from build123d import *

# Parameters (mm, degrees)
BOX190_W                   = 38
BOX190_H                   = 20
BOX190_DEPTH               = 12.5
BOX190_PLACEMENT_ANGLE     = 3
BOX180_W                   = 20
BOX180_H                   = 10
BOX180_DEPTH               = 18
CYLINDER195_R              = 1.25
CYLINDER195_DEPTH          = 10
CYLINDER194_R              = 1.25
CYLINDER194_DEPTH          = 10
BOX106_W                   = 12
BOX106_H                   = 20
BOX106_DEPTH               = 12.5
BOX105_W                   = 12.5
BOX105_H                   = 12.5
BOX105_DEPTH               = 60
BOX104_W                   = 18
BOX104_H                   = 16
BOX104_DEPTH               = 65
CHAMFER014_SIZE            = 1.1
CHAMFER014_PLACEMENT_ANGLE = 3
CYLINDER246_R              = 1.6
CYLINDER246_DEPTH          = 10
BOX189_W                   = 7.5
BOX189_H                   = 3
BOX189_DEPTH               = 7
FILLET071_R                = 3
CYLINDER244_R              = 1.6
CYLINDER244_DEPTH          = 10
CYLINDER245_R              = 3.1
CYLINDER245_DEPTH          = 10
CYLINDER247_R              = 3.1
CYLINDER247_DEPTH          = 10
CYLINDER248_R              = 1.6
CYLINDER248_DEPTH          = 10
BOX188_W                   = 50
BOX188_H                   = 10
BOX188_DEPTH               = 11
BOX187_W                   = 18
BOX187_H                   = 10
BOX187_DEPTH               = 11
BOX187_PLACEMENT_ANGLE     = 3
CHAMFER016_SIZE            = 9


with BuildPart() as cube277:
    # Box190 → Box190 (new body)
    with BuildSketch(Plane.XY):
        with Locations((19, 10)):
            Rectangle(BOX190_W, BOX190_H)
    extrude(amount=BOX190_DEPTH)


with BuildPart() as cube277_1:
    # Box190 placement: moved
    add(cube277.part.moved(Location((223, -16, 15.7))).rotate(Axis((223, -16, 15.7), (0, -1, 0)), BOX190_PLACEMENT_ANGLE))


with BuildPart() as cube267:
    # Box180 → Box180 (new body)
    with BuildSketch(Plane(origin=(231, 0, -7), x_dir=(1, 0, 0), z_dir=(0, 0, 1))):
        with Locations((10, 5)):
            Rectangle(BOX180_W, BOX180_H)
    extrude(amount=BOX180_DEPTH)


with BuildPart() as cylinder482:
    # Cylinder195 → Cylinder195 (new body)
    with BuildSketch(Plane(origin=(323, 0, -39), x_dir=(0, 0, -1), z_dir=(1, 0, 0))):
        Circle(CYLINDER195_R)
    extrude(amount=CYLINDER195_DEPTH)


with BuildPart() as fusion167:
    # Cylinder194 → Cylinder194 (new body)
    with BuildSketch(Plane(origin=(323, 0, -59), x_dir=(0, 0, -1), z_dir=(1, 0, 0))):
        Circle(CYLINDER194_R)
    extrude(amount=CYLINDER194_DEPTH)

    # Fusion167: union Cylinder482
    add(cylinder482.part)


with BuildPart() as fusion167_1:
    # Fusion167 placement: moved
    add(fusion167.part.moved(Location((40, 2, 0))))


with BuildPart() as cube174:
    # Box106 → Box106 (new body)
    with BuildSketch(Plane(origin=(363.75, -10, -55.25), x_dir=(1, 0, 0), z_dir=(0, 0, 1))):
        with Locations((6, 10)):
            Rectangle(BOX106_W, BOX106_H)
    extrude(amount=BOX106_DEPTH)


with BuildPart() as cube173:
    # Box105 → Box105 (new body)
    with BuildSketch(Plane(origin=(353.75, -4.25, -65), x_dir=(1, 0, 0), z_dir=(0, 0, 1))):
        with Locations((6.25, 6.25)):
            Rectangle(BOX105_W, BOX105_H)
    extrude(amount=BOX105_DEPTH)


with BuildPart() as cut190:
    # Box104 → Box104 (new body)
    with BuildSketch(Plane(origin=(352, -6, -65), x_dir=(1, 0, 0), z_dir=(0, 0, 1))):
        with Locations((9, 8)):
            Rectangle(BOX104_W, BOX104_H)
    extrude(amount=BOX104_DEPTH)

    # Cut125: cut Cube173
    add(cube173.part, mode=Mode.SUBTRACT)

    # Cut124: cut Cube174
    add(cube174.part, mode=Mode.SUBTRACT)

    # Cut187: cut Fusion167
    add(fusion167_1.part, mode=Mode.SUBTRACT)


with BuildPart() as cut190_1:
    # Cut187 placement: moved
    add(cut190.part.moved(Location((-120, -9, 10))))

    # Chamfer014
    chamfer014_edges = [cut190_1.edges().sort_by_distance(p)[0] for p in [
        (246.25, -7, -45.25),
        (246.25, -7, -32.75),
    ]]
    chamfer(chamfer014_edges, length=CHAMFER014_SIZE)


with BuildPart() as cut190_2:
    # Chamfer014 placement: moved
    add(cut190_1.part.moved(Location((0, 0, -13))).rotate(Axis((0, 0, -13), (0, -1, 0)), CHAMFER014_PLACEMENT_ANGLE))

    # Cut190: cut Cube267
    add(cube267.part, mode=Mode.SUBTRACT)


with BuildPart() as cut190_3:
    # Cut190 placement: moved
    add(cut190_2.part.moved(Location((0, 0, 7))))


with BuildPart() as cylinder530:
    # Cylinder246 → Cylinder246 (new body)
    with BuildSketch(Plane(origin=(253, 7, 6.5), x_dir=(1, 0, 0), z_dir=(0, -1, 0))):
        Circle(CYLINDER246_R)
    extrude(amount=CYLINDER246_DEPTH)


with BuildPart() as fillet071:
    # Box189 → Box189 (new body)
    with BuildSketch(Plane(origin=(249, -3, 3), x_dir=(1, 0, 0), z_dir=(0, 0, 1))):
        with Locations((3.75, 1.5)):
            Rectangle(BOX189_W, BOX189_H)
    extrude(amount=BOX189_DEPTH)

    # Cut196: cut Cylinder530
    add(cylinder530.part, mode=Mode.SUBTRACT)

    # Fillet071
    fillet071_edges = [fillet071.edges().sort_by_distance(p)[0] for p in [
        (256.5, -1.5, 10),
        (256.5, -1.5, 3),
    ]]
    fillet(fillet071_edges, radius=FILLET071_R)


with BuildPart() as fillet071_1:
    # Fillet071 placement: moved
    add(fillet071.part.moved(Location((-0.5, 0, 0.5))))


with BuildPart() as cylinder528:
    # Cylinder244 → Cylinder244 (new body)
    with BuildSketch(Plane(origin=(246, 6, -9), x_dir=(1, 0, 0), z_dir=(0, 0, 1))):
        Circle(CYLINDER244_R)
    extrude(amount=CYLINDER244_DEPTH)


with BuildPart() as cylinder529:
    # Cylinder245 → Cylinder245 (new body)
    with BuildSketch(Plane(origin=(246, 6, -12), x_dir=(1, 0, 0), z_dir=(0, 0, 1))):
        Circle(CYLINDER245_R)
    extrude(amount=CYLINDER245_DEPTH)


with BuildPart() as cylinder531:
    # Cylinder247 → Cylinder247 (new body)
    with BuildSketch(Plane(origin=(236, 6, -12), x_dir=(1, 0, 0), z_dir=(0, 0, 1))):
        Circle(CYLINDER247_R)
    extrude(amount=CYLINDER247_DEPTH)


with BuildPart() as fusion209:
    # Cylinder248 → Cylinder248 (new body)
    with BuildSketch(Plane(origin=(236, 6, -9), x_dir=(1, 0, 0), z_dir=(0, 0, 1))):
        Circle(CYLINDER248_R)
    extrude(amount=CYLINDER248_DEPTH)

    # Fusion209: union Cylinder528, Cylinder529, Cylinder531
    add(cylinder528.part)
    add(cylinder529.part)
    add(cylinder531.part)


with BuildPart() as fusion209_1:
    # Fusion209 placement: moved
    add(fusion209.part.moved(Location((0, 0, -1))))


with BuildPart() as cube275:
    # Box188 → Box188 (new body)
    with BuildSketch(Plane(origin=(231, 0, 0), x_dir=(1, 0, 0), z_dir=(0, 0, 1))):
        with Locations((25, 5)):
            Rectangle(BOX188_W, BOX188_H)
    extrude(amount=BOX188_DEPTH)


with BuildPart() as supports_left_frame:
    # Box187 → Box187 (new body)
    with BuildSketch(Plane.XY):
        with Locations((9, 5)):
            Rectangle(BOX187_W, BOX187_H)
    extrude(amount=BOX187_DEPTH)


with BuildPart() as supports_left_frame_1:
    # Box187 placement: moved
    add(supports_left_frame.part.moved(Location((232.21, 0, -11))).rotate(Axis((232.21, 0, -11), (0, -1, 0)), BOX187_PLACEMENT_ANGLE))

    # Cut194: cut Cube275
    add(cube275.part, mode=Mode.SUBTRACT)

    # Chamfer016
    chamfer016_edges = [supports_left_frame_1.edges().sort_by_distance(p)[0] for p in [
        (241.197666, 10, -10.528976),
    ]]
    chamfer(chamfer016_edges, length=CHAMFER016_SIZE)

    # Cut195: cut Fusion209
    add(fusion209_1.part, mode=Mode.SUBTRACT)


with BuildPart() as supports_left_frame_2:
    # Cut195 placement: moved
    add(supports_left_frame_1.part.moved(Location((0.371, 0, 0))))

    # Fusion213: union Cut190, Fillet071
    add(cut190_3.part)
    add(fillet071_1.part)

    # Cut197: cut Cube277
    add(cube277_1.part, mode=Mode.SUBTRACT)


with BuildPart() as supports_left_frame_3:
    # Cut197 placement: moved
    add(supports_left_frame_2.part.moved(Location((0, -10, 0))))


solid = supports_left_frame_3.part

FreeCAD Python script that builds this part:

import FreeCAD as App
import Part
import Sketcher
from FreeCAD import Vector
Q = App.Units.Quantity


def edges_at(feature, points):
    """Names of the edges that pass closest to the given points."""
    edges = feature.Shape.Edges
    near = lambda p: min(range(len(edges)), key=lambda i: edges[i].distToShape(Part.Vertex(*p))[0])
    return sorted({f"Edge{near(p) + 1}" for p in points})


def add_polygon(sketch, points):
    """Adds a closed chain of lines whose ends are joined by coincident constraints."""
    first, n = sketch.GeometryCount, len(points)
    for a, b in zip(points, points[1:] + points[:1]):
        sketch.addGeometry(Part.LineSegment(App.Vector(*a, 0), App.Vector(*b, 0)), False)
    for i in range(n):
        sketch.addConstraint(Sketcher.Constraint("Coincident", first + i, 2, first + (i + 1) % n, 1))

doc = App.newDocument("Part")
body = doc.addObject("PartDesign::Body", "Body")

# Sketch on XY plane
sketch1 = body.newObject("Sketcher::SketchObject", "Sketch")
sketch1.AttachmentSupport = (doc.getObject("XY_Plane"), [""])
sketch1.MapMode = "FlatFace"
add_polygon(sketch1, [(0, 20), (0, 0), (38, 0), (38, 20)])  # lines 0-3
sketch1.addConstraint([
    Sketcher.Constraint("Vertical", 0),
    Sketcher.Constraint("Horizontal", 1),
    Sketcher.Constraint("Vertical", 2),
    Sketcher.Constraint("Horizontal", 3),
    Sketcher.Constraint("Coincident", 0, 2, -1, 1),
    Sketcher.Constraint("DistanceX", 1, 1, 1, 2, Q("38 mm")),
    Sketcher.Constraint("DistanceY", 0, 2, 0, 1, Q("20 mm")),
])
pad1 = body.newObject("PartDesign::Pad", "Pad")
pad1.Profile = sketch1
pad1.Length = 12.5
body2 = doc.addObject("PartDesign::Body", "Body001")
doc.recompute()

body.Placement = App.Placement(Vector(223, -16, 15.7), App.Rotation(Vector(0, -1, 0), 3))
boolean = body2.newObject("PartDesign::Boolean", "Boolean")
boolean.Type = "Fuse"
boolean.addObjects([body])
body3 = doc.addObject("PartDesign::Body", "Body002")

# Sketch on XY plane
sketch2 = body3.newObject("Sketcher::SketchObject", "Sketch001")
sketch2.AttachmentSupport = (doc.getObject("XY_Plane002"), [""])
sketch2.MapMode = "FlatFace"
sketch2.AttachmentOffset = App.Placement(Vector(0, 0, -7), App.Rotation())
add_polygon(sketch2, [(231, 10), (231, 0), (251, 0), (251, 10)])  # lines 0-3
sketch2.addConstraint([
    Sketcher.Constraint("Vertical", 0),
    Sketcher.Constraint("Horizontal", 1),
    Sketcher.Constraint("Vertical", 2),
    Sketcher.Constraint("Horizontal", 3),
    Sketcher.Constraint("PointOnObject", 0, 2, -1),
    Sketcher.Constraint("DistanceX", 1, 1, 1, 2, Q("20 mm")),
    Sketcher.Constraint("DistanceY", 0, 2, 0, 1, Q("10 mm")),
    Sketcher.Constraint("DistanceX", -1, 1, 0, 2, Q("231 mm")),
])
pad2 = body3.newObject("PartDesign::Pad", "Pad001")
pad2.Profile = sketch2
pad2.Length = 18
body4 = doc.addObject("PartDesign::Body", "Body003")

# Sketch on YZ plane
sketch3 = body4.newObject("Sketcher::SketchObject", "Sketch002")
sketch3.AttachmentSupport = (doc.getObject("YZ_Plane003"), [""])
sketch3.MapMode = "FlatFace"
sketch3.AttachmentOffset = App.Placement(Vector(0, 0, 323), App.Rotation())
sketch3.addGeometry(Part.Circle(Vector(0, -39, 0), Vector(0, 0, 1), 1.25), False)
sketch3.addConstraint([
    Sketcher.Constraint("PointOnObject", 0, 3, -2),
    Sketcher.Constraint("Diameter", 0, Q("2.5 mm")),
    Sketcher.Constraint("DistanceY", 0, 3, -1, 1, Q("39 mm")),
])
pad3 = body4.newObject("PartDesign::Pad", "Pad002")
pad3.Profile = sketch3
pad3.Length = 10
body5 = doc.addObject("PartDesign::Body", "Body004")
body5.AllowCompound = True

# Sketch on YZ plane
sketch4 = body5.newObject("Sketcher::SketchObject", "Sketch003")
sketch4.AttachmentSupport = (doc.getObject("YZ_Plane004"), [""])
sketch4.MapMode = "FlatFace"
sketch4.AttachmentOffset = App.Placement(Vector(0, 0, 323), App.Rotation())
sketch4.addGeometry(Part.Circle(Vector(0, -59, 0), Vector(0, 0, 1), 1.25), False)
sketch4.addConstraint([
    Sketcher.Constraint("PointOnObject", 0, 3, -2),
    Sketcher.Constraint("Diameter", 0, Q("2.5 mm")),
    Sketcher.Constraint("DistanceY", 0, 3, -1, 1, Q("59 mm")),
])
pad4 = body5.newObject("PartDesign::Pad", "Pad003")
pad4.Profile = sketch4
pad4.Length = 10
doc.recompute()

boolean2 = body5.newObject("PartDesign::Boolean", "Boolean001")
boolean2.Type = "Fuse"
boolean2.addObjects([body4])
body6 = doc.addObject("PartDesign::Body", "Body005")
body6.AllowCompound = True
doc.recompute()

body5.Placement = App.Placement(Vector(40, 2, 0), App.Rotation(Vector(0, 0, 1), 0))
boolean3 = body6.newObject("PartDesign::Boolean", "Boolean002")
boolean3.Type = "Fuse"
boolean3.addObjects([body5])
body7 = doc.addObject("PartDesign::Body", "Body006")

# Sketch on XY plane
sketch5 = body7.newObject("Sketcher::SketchObject", "Sketch004")
sketch5.AttachmentSupport = (doc.getObject("XY_Plane006"), [""])
sketch5.MapMode = "FlatFace"
sketch5.AttachmentOffset = App.Placement(Vector(0, 0, -55.25), App.Rotation())
add_polygon(sketch5, [(363.75, 10), (363.75, -10), (375.75, -10), (375.75, 10)])  # lines 0-3
sketch5.addConstraint([
    Sketcher.Constraint("Vertical", 0),
    Sketcher.Constraint("Horizontal", 1),
    Sketcher.Constraint("Vertical", 2),
    Sketcher.Constraint("Horizontal", 3),
    Sketcher.Constraint("DistanceX", 1, 1, 1, 2, Q("12 mm")),
    Sketcher.Constraint("DistanceY", 0, 2, 0, 1, Q("20 mm")),
    Sketcher.Constraint("DistanceY", 0, 2, -1, 1, Q("10 mm")),
    Sketcher.Constraint("DistanceX", -1, 1, 0, 2, Q("363.75 mm")),
])
pad5 = body7.newObject("PartDesign::Pad", "Pad004")
pad5.Profile = sketch5
pad5.Length = 12.5
body8 = doc.addObject("PartDesign::Body", "Body007")

# Sketch on XY plane
sketch6 = body8.newObject("Sketcher::SketchObject", "Sketch005")
sketch6.AttachmentSupport = (doc.getObject("XY_Plane007"), [""])
sketch6.MapMode = "FlatFace"
sketch6.AttachmentOffset = App.Placement(Vector(0, 0, -65), App.Rotation())
add_polygon(sketch6, [(353.75, 8.25), (353.75, -4.25), (366.25, -4.25), (366.25, 8.25)])  # lines 0-3
sketch6.addConstraint([
    Sketcher.Constraint("Vertical", 0),
    Sketcher.Constraint("Horizontal", 1),
    Sketcher.Constraint("Vertical", 2),
    Sketcher.Constraint("Horizontal", 3),
    Sketcher.Constraint("Equal", 3, 0),
    Sketcher.Constraint("DistanceX", 1, 1, 1, 2, Q("12.5 mm")),
    Sketcher.Constraint("DistanceX", -1, 1, 0, 2, Q("353.75 mm")),
    Sketcher.Constraint("DistanceY", 0, 2, -1, 1, Q("4.25 mm")),
])
pad6 = body8.newObject("PartDesign::Pad", "Pad005")
pad6.Profile = sketch6
pad6.Length = 60
body9 = doc.addObject("PartDesign::Body", "Body008")

# Sketch on XY plane
sketch7 = body9.newObject("Sketcher::SketchObject", "Sketch006")
sketch7.AttachmentSupport = (doc.getObject("XY_Plane008"), [""])
sketch7.MapMode = "FlatFace"
sketch7.AttachmentOffset = App.Placement(Vector(0, 0, -65), App.Rotation())
add_polygon(sketch7, [(352, 10), (352, -6), (370, -6), (370, 10)])  # lines 0-3
sketch7.addConstraint([
    Sketcher.Constraint("Vertical", 0),
    Sketcher.Constraint("Horizontal", 1),
    Sketcher.Constraint("Vertical", 2),
    Sketcher.Constraint("Horizontal", 3),
    Sketcher.Constraint("DistanceX", 1, 1, 1, 2, Q("18 mm")),
    Sketcher.Constraint("DistanceY", 0, 2, 0, 1, Q("16 mm")),
    Sketcher.Constraint("DistanceX", -1, 1, 0, 2, Q("352 mm")),
    Sketcher.Constraint("DistanceY", 0, 2, -1, 1, Q("6 mm")),
])
pad7 = body9.newObject("PartDesign::Pad", "Pad006")
pad7.Profile = sketch7
pad7.Length = 65
doc.recompute()

boolean4 = body9.newObject("PartDesign::Boolean", "Boolean003")
boolean4.Type = "Cut"
boolean4.addObjects([body8])
doc.recompute()

boolean5 = body9.newObject("PartDesign::Boolean", "Boolean004")
boolean5.Type = "Cut"
boolean5.addObjects([body7])
doc.recompute()

boolean6 = body9.newObject("PartDesign::Boolean", "Boolean005")
boolean6.Type = "Cut"
boolean6.addObjects([body6])
body10 = doc.addObject("PartDesign::Body", "Body009")
doc.recompute()

body9.Placement = App.Placement(Vector(-120, -9, 10), App.Rotation(Vector(0, 0, 1), 0))
boolean7 = body10.newObject("PartDesign::Boolean", "Boolean006")
boolean7.Type = "Fuse"
boolean7.addObjects([body9])
doc.recompute()

chamfer = body10.newObject("PartDesign::Chamfer", "Chamfer")
chamfer.Base = (boolean7, edges_at(boolean7, [(246.25, -7, -45.25), (246.25, -7, -32.75)]))
chamfer.Size = 1.1
body11 = doc.addObject("PartDesign::Body", "Body010")
doc.recompute()

body10.Placement = App.Placement(Vector(0, 0, -13), App.Rotation(Vector(0, -1, 0), 3))
boolean8 = body11.newObject("PartDesign::Boolean", "Boolean007")
boolean8.Type = "Fuse"
boolean8.addObjects([body10])
doc.recompute()

boolean9 = body11.newObject("PartDesign::Boolean", "Boolean008")
boolean9.Type = "Cut"
boolean9.addObjects([body3])
body12 = doc.addObject("PartDesign::Body", "Body011")
doc.recompute()

body11.Placement = App.Placement(Vector(0, 0, 7), App.Rotation(Vector(0, 0, 1), 0))
boolean10 = body12.newObject("PartDesign::Boolean", "Boolean009")
boolean10.Type = "Fuse"
boolean10.addObjects([body11])
body13 = doc.addObject("PartDesign::Body", "Body012")

# Sketch on XZ plane
sketch8 = body13.newObject("Sketcher::SketchObject", "Sketch007")
sketch8.AttachmentSupport = (doc.getObject("XZ_Plane012"), [""])
sketch8.MapMode = "FlatFace"
sketch8.AttachmentOffset = App.Placement(Vector(0, 0, -7), App.Rotation())
sketch8.addGeometry(Part.Circle(Vector(253, 6.5, 0), Vector(0, 0, 1), 1.6), False)
sketch8.addConstraint([
    Sketcher.Constraint("Diameter", 0, Q("3.2 mm")),
    Sketcher.Constraint("DistanceX", -1, 1, 0, 3, Q("253 mm")),
    Sketcher.Constraint("DistanceY", -1, 1, 0, 3, Q("6.5 mm")),
])
pad8 = body13.newObject("PartDesign::Pad", "Pad007")
pad8.Profile = sketch8
pad8.Length = 10
body14 = doc.addObject("PartDesign::Body", "Body013")

# Sketch on XY plane
sketch9 = body14.newObject("Sketcher::SketchObject", "Sketch008")
sketch9.AttachmentSupport = (doc.getObject("XY_Plane013"), [""])
sketch9.MapMode = "FlatFace"
sketch9.AttachmentOffset = App.Placement(Vector(0, 0, 3), App.Rotation())
add_polygon(sketch9, [(249, 0), (249, -3), (256.5, -3), (256.5, 0)])  # lines 0-3
sketch9.addConstraint([
    Sketcher.Constraint("Vertical", 0),
    Sketcher.Constraint("Horizontal", 1),
    Sketcher.Constraint("Vertical", 2),
    Sketcher.Constraint("Horizontal", 3),
    Sketcher.Constraint("PointOnObject", 2, 2, -1),
    Sketcher.Constraint("DistanceY", 0, 2, 0, 1, Q("3 mm")),
    Sketcher.Constraint("DistanceX", 1, 1, 1, 2, Q("7.5 mm")),
    Sketcher.Constraint("DistanceX", -1, 1, 0, 2, Q("249 mm")),
])
pad9 = body14.newObject("PartDesign::Pad", "Pad008")
pad9.Profile = sketch9
pad9.Length = 7
doc.recompute()

boolean11 = body14.newObject("PartDesign::Boolean", "Boolean010")
boolean11.Type = "Cut"
boolean11.addObjects([body13])
doc.recompute()

fillet = body14.newObject("PartDesign::Fillet", "Fillet")
fillet.Base = (boolean11, edges_at(boolean11, [(256.5, -1.5, 10), (256.5, -1.5, 3)]))
fillet.Radius = 3
body15 = doc.addObject("PartDesign::Body", "Body014")
doc.recompute()

body14.Placement = App.Placement(Vector(-0.5, 0, 0.5), App.Rotation(Vector(0, 0, 1), 0))
boolean12 = body15.newObject("PartDesign::Boolean", "Boolean011")
boolean12.Type = "Fuse"
boolean12.addObjects([body14])
body16 = doc.addObject("PartDesign::Body", "Body015")

# Sketch on XY plane
sketch10 = body16.newObject("Sketcher::SketchObject", "Sketch009")
sketch10.AttachmentSupport = (doc.getObject("XY_Plane015"), [""])
sketch10.MapMode = "FlatFace"
sketch10.AttachmentOffset = App.Placement(Vector(0, 0, -9), App.Rotation())
sketch10.addGeometry(Part.Circle(Vector(246, 6, 0), Vector(0, 0, 1), 1.6), False)
sketch10.addConstraint([
    Sketcher.Constraint("Diameter", 0, Q("3.2 mm")),
    Sketcher.Constraint("DistanceX", -1, 1, 0, 3, Q("246 mm")),
    Sketcher.Constraint("DistanceY", -1, 1, 0, 3, Q("6 mm")),
])
pad10 = body16.newObject("PartDesign::Pad", "Pad009")
pad10.Profile = sketch10
pad10.Length = 10
body17 = doc.addObject("PartDesign::Body", "Body016")

# Sketch on XY plane
sketch11 = body17.newObject("Sketcher::SketchObject", "Sketch010")
sketch11.AttachmentSupport = (doc.getObject("XY_Plane016"), [""])
sketch11.MapMode = "FlatFace"
sketch11.AttachmentOffset = App.Placement(Vector(0, 0, -12), App.Rotation())
sketch11.addGeometry(Part.Circle(Vector(246, 6, 0), Vector(0, 0, 1), 3.1), False)
sketch11.addConstraint([
    Sketcher.Constraint("Diameter", 0, Q("6.2 mm")),
    Sketcher.Constraint("DistanceX", -1, 1, 0, 3, Q("246 mm")),
    Sketcher.Constraint("DistanceY", -1, 1, 0, 3, Q("6 mm")),
])
pad11 = body17.newObject("PartDesign::Pad", "Pad010")
pad11.Profile = sketch11
pad11.Length = 10
body18 = doc.addObject("PartDesign::Body", "Body017")

# Sketch on XY plane
sketch12 = body18.newObject("Sketcher::SketchObject", "Sketch011")
sketch12.AttachmentSupport = (doc.getObject("XY_Plane017"), [""])
sketch12.MapMode = "FlatFace"
sketch12.AttachmentOffset = App.Placement(Vector(0, 0, -12), App.Rotation())
sketch12.addGeometry(Part.Circle(Vector(236, 6, 0), Vector(0, 0, 1), 3.1), False)
sketch12.addConstraint([
    Sketcher.Constraint("Diameter", 0, Q("6.2 mm")),
    Sketcher.Constraint("DistanceX", -1, 1, 0, 3, Q("236 mm")),
    Sketcher.Constraint("DistanceY", -1, 1, 0, 3, Q("6 mm")),
])
pad12 = body18.newObject("PartDesign::Pad", "Pad011")
pad12.Profile = sketch12
pad12.Length = 10
body19 = doc.addObject("PartDesign::Body", "Body018")
body19.AllowCompound = True

# Sketch on XY plane
sketch13 = body19.newObject("Sketcher::SketchObject", "Sketch012")
sketch13.AttachmentSupport = (doc.getObject("XY_Plane018"), [""])
sketch13.MapMode = "FlatFace"
sketch13.AttachmentOffset = App.Placement(Vector(0, 0, -9), App.Rotation())
sketch13.addGeometry(Part.Circle(Vector(236, 6, 0), Vector(0, 0, 1), 1.6), False)
sketch13.addConstraint([
    Sketcher.Constraint("Diameter", 0, Q("3.2 mm")),
    Sketcher.Constraint("DistanceX", -1, 1, 0, 3, Q("236 mm")),
    Sketcher.Constraint("DistanceY", -1, 1, 0, 3, Q("6 mm")),
])
pad13 = body19.newObject("PartDesign::Pad", "Pad012")
pad13.Profile = sketch13
pad13.Length = 10
doc.recompute()

boolean13 = body19.newObject("PartDesign::Boolean", "Boolean012")
boolean13.Type = "Fuse"
boolean13.addObjects([body16])
doc.recompute()

boolean14 = body19.newObject("PartDesign::Boolean", "Boolean013")
boolean14.Type = "Fuse"
boolean14.addObjects([body17])
doc.recompute()

boolean15 = body19.newObject("PartDesign::Boolean", "Boolean014")
boolean15.Type = "Fuse"
boolean15.addObjects([body18])
body20 = doc.addObject("PartDesign::Body", "Body019")
body20.AllowCompound = True
doc.recompute()

body19.Placement = App.Placement(Vector(0, 0, -1), App.Rotation(Vector(0, 0, 1), 0))
boolean16 = body20.newObject("PartDesign::Boolean", "Boolean015")
boolean16.Type = "Fuse"
boolean16.addObjects([body19])
body21 = doc.addObject("PartDesign::Body", "Body020")

# Sketch on XY plane
sketch14 = body21.newObject("Sketcher::SketchObject", "Sketch013")
sketch14.AttachmentSupport = (doc.getObject("XY_Plane020"), [""])
sketch14.MapMode = "FlatFace"
add_polygon(sketch14, [(231, 10), (231, 0), (281, 0), (281, 10)])  # lines 0-3
sketch14.addConstraint([
    Sketcher.Constraint("Vertical", 0),
    Sketcher.Constraint("Horizontal", 1),
    Sketcher.Constraint("Vertical", 2),
    Sketcher.Constraint("Horizontal", 3),
    Sketcher.Constraint("PointOnObject", 0, 2, -1),
    Sketcher.Constraint("DistanceX", 1, 1, 1, 2, Q("50 mm")),
    Sketcher.Constraint("DistanceY", 0, 2, 0, 1, Q("10 mm")),
    Sketcher.Constraint("DistanceX", -1, 1, 0, 2, Q("231 mm")),
])
pad14 = body21.newObject("PartDesign::Pad", "Pad013")
pad14.Profile = sketch14
pad14.Length = 11
body22 = doc.addObject("PartDesign::Body", "Body021")

# Sketch on XY plane
sketch15 = body22.newObject("Sketcher::SketchObject", "Sketch014")
sketch15.AttachmentSupport = (doc.getObject("XY_Plane021"), [""])
sketch15.MapMode = "FlatFace"
add_polygon(sketch15, [(0, 10), (0, 0), (18, 0), (18, 10)])  # lines 0-3
sketch15.addConstraint([
    Sketcher.Constraint("Vertical", 0),
    Sketcher.Constraint("Horizontal", 1),
    Sketcher.Constraint("Vertical", 2),
    Sketcher.Constraint("Horizontal", 3),
    Sketcher.Constraint("Coincident", 0, 2, -1, 1),
    Sketcher.Constraint("DistanceX", 1, 1, 1, 2, Q("18 mm")),
    Sketcher.Constraint("DistanceY", 0, 2, 0, 1, Q("10 mm")),
])
pad15 = body22.newObject("PartDesign::Pad", "Pad014")
pad15.Profile = sketch15
pad15.Length = 11
body23 = doc.addObject("PartDesign::Body", "Body022")
doc.recompute()

body22.Placement = App.Placement(Vector(232.21, 0, -11), App.Rotation(Vector(0, -1, 0), 3))
boolean17 = body23.newObject("PartDesign::Boolean", "Boolean016")
boolean17.Type = "Fuse"
boolean17.addObjects([body22])
doc.recompute()

boolean18 = body23.newObject("PartDesign::Boolean", "Boolean017")
boolean18.Type = "Cut"
boolean18.addObjects([body21])
doc.recompute()

chamfer2 = body23.newObject("PartDesign::Chamfer", "Chamfer001")
chamfer2.Base = (boolean18, edges_at(boolean18, [(241.198, 10, -10.529)]))
chamfer2.Size = 9
doc.recompute()

boolean19 = body23.newObject("PartDesign::Boolean", "Boolean018")
boolean19.Type = "Cut"
boolean19.addObjects([body20])
body24 = doc.addObject("PartDesign::Body", "Body023")
doc.recompute()

body23.Placement = App.Placement(Vector(0.371, 0, 0), App.Rotation(Vector(0, 0, 1), 0))
boolean20 = body24.newObject("PartDesign::Boolean", "Boolean019")
boolean20.Type = "Fuse"
boolean20.addObjects([body23])
doc.recompute()

boolean21 = body24.newObject("PartDesign::Boolean", "Boolean020")
boolean21.Type = "Fuse"
boolean21.addObjects([body12])
doc.recompute()

boolean22 = body24.newObject("PartDesign::Boolean", "Boolean021")
boolean22.Type = "Fuse"
boolean22.addObjects([body15])
doc.recompute()

boolean23 = body24.newObject("PartDesign::Boolean", "Boolean022")
boolean23.Type = "Cut"
boolean23.addObjects([body2])
body25 = doc.addObject("PartDesign::Body", "Body024")
doc.recompute()

body24.Placement = App.Placement(Vector(0, -10, 0), App.Rotation(Vector(0, 0, 1), 0))
boolean24 = body25.newObject("PartDesign::Boolean", "Boolean023")
boolean24.Type = "Fuse"
boolean24.addObjects([body24])

doc.recompute()
